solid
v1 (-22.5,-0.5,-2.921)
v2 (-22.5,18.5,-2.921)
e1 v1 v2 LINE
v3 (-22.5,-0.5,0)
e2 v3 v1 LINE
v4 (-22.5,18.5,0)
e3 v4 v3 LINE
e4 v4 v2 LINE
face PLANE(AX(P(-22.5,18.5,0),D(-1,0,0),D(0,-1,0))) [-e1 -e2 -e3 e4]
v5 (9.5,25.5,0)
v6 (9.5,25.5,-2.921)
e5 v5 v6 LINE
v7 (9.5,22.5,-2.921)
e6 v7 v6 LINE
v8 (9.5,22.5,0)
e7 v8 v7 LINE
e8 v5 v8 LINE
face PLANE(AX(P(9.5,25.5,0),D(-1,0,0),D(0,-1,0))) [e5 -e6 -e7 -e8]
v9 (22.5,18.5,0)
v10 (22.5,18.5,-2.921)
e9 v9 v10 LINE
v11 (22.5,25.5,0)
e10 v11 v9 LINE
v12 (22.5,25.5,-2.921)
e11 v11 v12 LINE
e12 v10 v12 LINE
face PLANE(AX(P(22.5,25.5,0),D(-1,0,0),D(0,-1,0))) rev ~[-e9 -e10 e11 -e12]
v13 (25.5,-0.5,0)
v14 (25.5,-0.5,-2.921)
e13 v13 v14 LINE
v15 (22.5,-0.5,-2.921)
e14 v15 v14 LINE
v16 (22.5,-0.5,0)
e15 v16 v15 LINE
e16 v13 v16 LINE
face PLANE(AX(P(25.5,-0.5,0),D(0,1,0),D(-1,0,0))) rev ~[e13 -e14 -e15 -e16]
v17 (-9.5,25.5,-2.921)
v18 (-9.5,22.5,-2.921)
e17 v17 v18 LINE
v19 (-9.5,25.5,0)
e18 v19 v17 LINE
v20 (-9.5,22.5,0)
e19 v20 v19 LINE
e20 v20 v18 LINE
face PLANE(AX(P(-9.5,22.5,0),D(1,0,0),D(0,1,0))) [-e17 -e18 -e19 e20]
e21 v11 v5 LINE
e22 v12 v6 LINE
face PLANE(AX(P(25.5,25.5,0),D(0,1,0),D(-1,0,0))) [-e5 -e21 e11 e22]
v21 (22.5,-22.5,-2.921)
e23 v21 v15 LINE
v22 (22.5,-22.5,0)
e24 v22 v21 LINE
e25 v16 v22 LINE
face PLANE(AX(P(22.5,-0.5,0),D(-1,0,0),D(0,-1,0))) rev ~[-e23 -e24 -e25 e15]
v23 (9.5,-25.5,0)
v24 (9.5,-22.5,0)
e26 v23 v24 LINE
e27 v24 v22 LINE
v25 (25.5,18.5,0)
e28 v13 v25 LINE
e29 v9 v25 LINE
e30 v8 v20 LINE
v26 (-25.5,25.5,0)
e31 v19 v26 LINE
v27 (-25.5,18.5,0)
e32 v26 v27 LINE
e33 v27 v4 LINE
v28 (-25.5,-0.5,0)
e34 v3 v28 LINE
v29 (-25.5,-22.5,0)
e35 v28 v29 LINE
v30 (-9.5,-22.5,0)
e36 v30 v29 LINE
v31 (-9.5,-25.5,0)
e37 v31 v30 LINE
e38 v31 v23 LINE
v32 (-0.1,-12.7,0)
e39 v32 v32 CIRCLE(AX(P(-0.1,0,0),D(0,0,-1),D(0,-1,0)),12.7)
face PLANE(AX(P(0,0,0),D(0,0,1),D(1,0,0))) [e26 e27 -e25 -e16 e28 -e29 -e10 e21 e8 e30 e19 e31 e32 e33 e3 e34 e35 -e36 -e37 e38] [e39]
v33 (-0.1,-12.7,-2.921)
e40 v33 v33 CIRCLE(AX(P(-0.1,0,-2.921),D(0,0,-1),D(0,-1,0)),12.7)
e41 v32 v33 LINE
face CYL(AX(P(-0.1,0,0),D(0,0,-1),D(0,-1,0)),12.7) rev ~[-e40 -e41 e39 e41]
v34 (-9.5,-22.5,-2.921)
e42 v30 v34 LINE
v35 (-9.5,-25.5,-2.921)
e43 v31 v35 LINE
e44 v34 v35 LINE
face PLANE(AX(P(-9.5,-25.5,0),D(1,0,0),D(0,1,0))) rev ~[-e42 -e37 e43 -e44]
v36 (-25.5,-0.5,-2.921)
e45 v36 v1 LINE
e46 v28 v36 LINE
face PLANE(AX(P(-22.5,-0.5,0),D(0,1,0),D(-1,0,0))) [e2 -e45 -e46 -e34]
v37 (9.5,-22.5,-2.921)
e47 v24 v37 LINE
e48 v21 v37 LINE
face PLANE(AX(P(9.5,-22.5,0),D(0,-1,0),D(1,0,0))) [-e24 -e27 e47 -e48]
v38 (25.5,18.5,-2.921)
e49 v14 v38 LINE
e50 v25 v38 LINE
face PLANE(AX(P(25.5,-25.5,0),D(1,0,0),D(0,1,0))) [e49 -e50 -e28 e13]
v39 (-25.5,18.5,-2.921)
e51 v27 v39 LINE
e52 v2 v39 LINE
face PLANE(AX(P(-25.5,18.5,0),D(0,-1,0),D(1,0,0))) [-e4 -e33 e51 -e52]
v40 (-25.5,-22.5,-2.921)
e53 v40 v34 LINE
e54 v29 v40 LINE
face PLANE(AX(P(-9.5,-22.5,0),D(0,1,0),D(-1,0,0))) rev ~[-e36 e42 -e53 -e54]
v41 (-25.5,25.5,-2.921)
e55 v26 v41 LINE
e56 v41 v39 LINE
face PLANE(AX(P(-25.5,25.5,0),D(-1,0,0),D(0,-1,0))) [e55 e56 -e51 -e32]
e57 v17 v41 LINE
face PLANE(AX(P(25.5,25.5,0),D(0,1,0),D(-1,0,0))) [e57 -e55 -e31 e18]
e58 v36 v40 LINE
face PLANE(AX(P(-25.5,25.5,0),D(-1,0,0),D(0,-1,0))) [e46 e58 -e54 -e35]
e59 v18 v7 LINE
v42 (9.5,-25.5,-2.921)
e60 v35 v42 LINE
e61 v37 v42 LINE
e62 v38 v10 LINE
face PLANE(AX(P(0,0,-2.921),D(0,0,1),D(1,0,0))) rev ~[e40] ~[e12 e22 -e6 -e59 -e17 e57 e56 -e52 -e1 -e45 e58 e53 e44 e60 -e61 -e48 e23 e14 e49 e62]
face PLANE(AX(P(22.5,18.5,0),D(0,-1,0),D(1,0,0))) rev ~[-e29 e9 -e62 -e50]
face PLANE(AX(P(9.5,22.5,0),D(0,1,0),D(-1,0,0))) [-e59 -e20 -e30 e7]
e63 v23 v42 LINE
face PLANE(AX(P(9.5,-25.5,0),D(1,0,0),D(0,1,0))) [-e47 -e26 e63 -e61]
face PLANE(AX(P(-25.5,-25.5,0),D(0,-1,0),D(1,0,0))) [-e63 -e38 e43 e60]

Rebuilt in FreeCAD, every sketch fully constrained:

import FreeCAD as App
import Part
import Sketcher
Q = App.Units.Quantity

doc = App.newDocument("Part")
body = doc.addObject("PartDesign::Body", "Body")

# Sketch on XY plane
sketch1 = body.newObject("Sketcher::SketchObject", "Sketch")
sketch1.AttachmentSupport = (doc.getObject("XY_Plane"), [""])
sketch1.MapMode = "FlatFace"
sketch1.addGeometry([
    Part.LineSegment(App.Vector(-25.5, 25.5, 0), App.Vector(-25.5, -25.5, 0)),
    Part.LineSegment(App.Vector(-25.5, -25.5, 0), App.Vector(25.5, -25.5, 0)),
    Part.LineSegment(App.Vector(25.5, -25.5, 0), App.Vector(25.5, 25.5, 0)),
    Part.LineSegment(App.Vector(25.5, 25.5, 0), App.Vector(-25.5, 25.5, 0)),
], False)
sketch1.addConstraint([
    Sketcher.Constraint("Coincident", 0, 2, 1, 1),
    Sketcher.Constraint("Coincident", 1, 2, 2, 1),
    Sketcher.Constraint("Coincident", 2, 2, 3, 1),
    Sketcher.Constraint("Coincident", 3, 2, 0, 1),
    Sketcher.Constraint("Vertical", 0),
    Sketcher.Constraint("Horizontal", 1),
    Sketcher.Constraint("Vertical", 2),
    Sketcher.Constraint("Horizontal", 3),
    Sketcher.Constraint("Symmetric", 0, 2, 2, 2, -1, 1),
    Sketcher.Constraint("Equal", 3, 0),
    Sketcher.Constraint("DistanceX", 1, 1, 1, 2, Q("51 mm")),
])
pad1 = body.newObject("PartDesign::Pad", "Pad")
pad1.Profile = sketch1
pad1.Length = 2.921
pad1.Reversed = True

# Sketch on XY plane
sketch2 = body.newObject("Sketcher::SketchObject", "Sketch001")
sketch2.AttachmentSupport = (doc.getObject("XY_Plane"), [""])
sketch2.MapMode = "FlatFace"
sketch2.addGeometry(Part.Circle(App.Vector(-0.1, 0, 0), App.Vector(0, 0, 1), 12.7), False)
sketch2.addConstraint([
    Sketcher.Constraint("PointOnObject", 0, 3, -1),
    Sketcher.Constraint("Diameter", 0, Q("25.4 mm")),
    Sketcher.Constraint("DistanceX", 0, 3, -1, 1, Q("0.1 mm")),
])
doc.recompute()
hole = body.newObject("PartDesign::Hole", "Hole")
hole.Profile = sketch2
hole.ThreadType = "None"
hole.Diameter = 25.4
hole.DepthType = "ThroughAll"

# Sketch on XY plane
sketch3 = body.newObject("Sketcher::SketchObject", "Sketch002")
sketch3.AttachmentSupport = (doc.getObject("XY_Plane"), [""])
sketch3.MapMode = "FlatFace"
sketch3.addGeometry([
    Part.LineSegment(App.Vector(-25.5, -22.5, 0), App.Vector(-25.5, -25.5, 0)),  # 0
    Part.LineSegment(App.Vector(-25.5, -25.5, 0), App.Vector(-9.5, -25.5, 0)),  # 1
    Part.LineSegment(App.Vector(-9.5, -25.5, 0), App.Vector(-9.5, -22.5, 0)),  # 2
    Part.LineSegment(App.Vector(-9.5, -22.5, 0), App.Vector(-25.5, -22.5, 0)),  # 3
    Part.LineSegment(App.Vector(9.5, -22.5, 0), App.Vector(9.5, -25.5, 0)),  # 4
    Part.LineSegment(App.Vector(9.5, -25.5, 0), App.Vector(25.5, -25.5, 0)),  # 5
    Part.LineSegment(App.Vector(25.5, -25.5, 0), App.Vector(25.5, -0.5, 0)),  # 6
    Part.LineSegment(App.Vector(25.5, -0.5, 0), App.Vector(22.5, -0.5, 0)),  # 7
    Part.LineSegment(App.Vector(22.5, -0.5, 0), App.Vector(22.5, -22.5, 0)),  # 8
    Part.LineSegment(App.Vector(22.5, -22.5, 0), App.Vector(9.5, -22.5, 0)),  # 9
    Part.LineSegment(App.Vector(-25.5, 18.5, 0), App.Vector(-25.5, -0.5, 0)),  # 10
    Part.LineSegment(App.Vector(-25.5, -0.5, 0), App.Vector(-22.5, -0.5, 0)),  # 11
    Part.LineSegment(App.Vector(-22.5, -0.5, 0), App.Vector(-22.5, 18.5, 0)),  # 12
    Part.LineSegment(App.Vector(-22.5, 18.5, 0), App.Vector(-25.5, 18.5, 0)),  # 13
    Part.LineSegment(App.Vector(9.5, 25.5, 0), App.Vector(-9.5, 25.5, 0)),  # 14
    Part.LineSegment(App.Vector(-9.5, 25.5, 0), App.Vector(-9.5, 22.5, 0)),  # 15
    Part.LineSegment(App.Vector(-9.5, 22.5, 0), App.Vector(9.5, 22.5, 0)),  # 16
    Part.LineSegment(App.Vector(9.5, 22.5, 0), App.Vector(9.5, 25.5, 0)),  # 17
    Part.LineSegment(App.Vector(22.5, 18.5, 0), App.Vector(25.5, 18.5, 0)),  # 18
    Part.LineSegment(App.Vector(25.5, 18.5, 0), App.Vector(25.5, 25.5, 0)),  # 19
    Part.LineSegment(App.Vector(25.5, 25.5, 0), App.Vector(22.5, 25.5, 0)),  # 20
    Part.LineSegment(App.Vector(22.5, 25.5, 0), App.Vector(22.5, 18.5, 0)),  # 21
], False)
sketch3.addConstraint([
    Sketcher.Constraint("Coincident", 0, 2, 1, 1),
    Sketcher.Constraint("Coincident", 1, 2, 2, 1),
    Sketcher.Constraint("Coincident", 2, 2, 3, 1),
    Sketcher.Constraint("Coincident", 3, 2, 0, 1),
    Sketcher.Constraint("Coincident", 4, 2, 5, 1),
    Sketcher.Constraint("Coincident", 5, 2, 6, 1),
    Sketcher.Constraint("Coincident", 6, 2, 7, 1),
    Sketcher.Constraint("Coincident", 7, 2, 8, 1),
    Sketcher.Constraint("Coincident", 8, 2, 9, 1),
    Sketcher.Constraint("Coincident", 9, 2, 4, 1),
    Sketcher.Constraint("Coincident", 10, 2, 11, 1),
    Sketcher.Constraint("Coincident", 11, 2, 12, 1),
    Sketcher.Constraint("Coincident", 12, 2, 13, 1),
    Sketcher.Constraint("Coincident", 13, 2, 10, 1),
    Sketcher.Constraint("Coincident", 14, 2, 15, 1),
    Sketcher.Constraint("Coincident", 15, 2, 16, 1),
    Sketcher.Constraint("Coincident", 16, 2, 17, 1),
    Sketcher.Constraint("Coincident", 17, 2, 14, 1),
    Sketcher.Constraint("Coincident", 18, 2, 19, 1),
    Sketcher.Constraint("Coincident", 19, 2, 20, 1),
    Sketcher.Constraint("Coincident", 20, 2, 21, 1),
    Sketcher.Constraint("Coincident", 21, 2, 18, 1),
    Sketcher.Constraint("Vertical", 0),
    Sketcher.Constraint("Horizontal", 1),
    Sketcher.Constraint("Vertical", 2),
    Sketcher.Constraint("Horizontal", 3),
    Sketcher.Constraint("Vertical", 4),
    Sketcher.Constraint("Horizontal", 5),
    Sketcher.Constraint("Vertical", 6),
    Sketcher.Constraint("Horizontal", 7),
    Sketcher.Constraint("Vertical", 8),
    Sketcher.Constraint("Horizontal", 9),
    Sketcher.Constraint("Vertical", 10),
    Sketcher.Constraint("Horizontal", 11),
    Sketcher.Constraint("Vertical", 12),
    Sketcher.Constraint("Horizontal", 13),
    Sketcher.Constraint("Horizontal", 14),
    Sketcher.Constraint("Vertical", 15),
    Sketcher.Constraint("Horizontal", 16),
    Sketcher.Constraint("Vertical", 17),
    Sketcher.Constraint("Horizontal", 18),
    Sketcher.Constraint("Vertical", 19),
    Sketcher.Constraint("Horizontal", 20),
    Sketcher.Constraint("Vertical", 21),
    Sketcher.Constraint("Symmetric", 4, 2, 14, 2, -1, 1),
    Sketcher.Constraint("Symmetric", 2, 2, 16, 2, -1, 1),
    Sketcher.Constraint("Symmetric", 0, 2, 19, 2, -1, 1),
    Sketcher.Constraint("Symmetric", 1, 2, 4, 2, -2),
    Sketcher.Constraint("Symmetric", 6, 2, 10, 2, -2),
    Sketcher.Constraint("Symmetric", 13, 2, 18, 2, -2),
    Sketcher.Constraint("Horizontal", 3, 2, 8, 2),
    Sketcher.Constraint("Vertical", 8, 2, 20, 2),
    Sketcher.Constraint("Equal", 7, 11),
    Sketcher.Constraint("Equal", 20, 0),
    Sketcher.Constraint("Equal", 16, 10),
    Sketcher.Constraint("DistanceX", 1, 1, 1, 2, Q("16 mm")),
    Sketcher.Constraint("DistanceX", 7, 2, 7, 1, Q("3 mm")),
    Sketcher.Constraint("DistanceX", 14, 2, 14, 1, Q("19 mm")),
    Sketcher.Constraint("DistanceY", 6, 1, 6, 2, Q("25 mm")),
    Sketcher.Constraint("DistanceY", 19, 1, 19, 2, Q("7 mm")),
])
pocket1 = body.newObject("PartDesign::Pocket", "Pocket")
pocket1.Profile = sketch3
pocket1.Length = 2.921

doc.recompute()
